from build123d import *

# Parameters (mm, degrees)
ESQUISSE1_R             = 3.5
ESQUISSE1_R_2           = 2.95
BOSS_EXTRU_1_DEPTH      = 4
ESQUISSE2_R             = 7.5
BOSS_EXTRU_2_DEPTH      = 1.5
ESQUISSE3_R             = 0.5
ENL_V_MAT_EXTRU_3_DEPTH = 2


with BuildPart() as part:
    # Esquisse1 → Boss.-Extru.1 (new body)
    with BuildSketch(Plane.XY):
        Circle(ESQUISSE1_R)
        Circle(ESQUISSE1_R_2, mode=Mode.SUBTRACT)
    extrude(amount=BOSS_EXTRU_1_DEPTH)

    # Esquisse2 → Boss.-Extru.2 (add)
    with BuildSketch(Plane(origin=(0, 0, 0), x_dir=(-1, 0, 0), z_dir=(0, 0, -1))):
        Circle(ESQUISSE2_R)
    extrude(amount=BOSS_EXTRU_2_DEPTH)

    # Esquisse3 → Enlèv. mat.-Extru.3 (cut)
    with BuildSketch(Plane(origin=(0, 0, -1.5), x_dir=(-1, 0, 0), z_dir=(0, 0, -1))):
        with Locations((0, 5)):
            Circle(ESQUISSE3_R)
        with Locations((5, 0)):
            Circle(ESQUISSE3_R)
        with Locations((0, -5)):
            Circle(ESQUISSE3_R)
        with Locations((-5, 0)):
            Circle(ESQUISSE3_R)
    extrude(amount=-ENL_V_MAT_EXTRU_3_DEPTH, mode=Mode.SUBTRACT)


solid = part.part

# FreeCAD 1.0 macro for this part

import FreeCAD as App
import Part
import Sketcher

doc = App.newDocument("Part")
body = doc.addObject("PartDesign::Body", "Body")

sketch1 = body.newObject("Sketcher::SketchObject", "Sketch")
sketch1.AttachmentSupport = (doc.getObject("XY_Plane"), [""])
sketch1.MapMode = "FlatFace"
sketch1.addGeometry(Part.Circle(App.Vector(0, 0, 0), App.Vector(0, 0, 1), 3.5), False)
sketch1.addGeometry(Part.Circle(App.Vector(0, 0, 0), App.Vector(0, 0, 1), 2.95), False)
sketch1.addConstraint(Sketcher.Constraint("Coincident", 0, 3, -1, 1))
sketch1.addConstraint(Sketcher.Constraint("Coincident", 1, 3, -1, 1))
sketch1.addConstraint(Sketcher.Constraint("Diameter", 0, 7.0))
sketch1.addConstraint(Sketcher.Constraint("Diameter", 1, 5.9))
pad1 = body.newObject("PartDesign::Pad", "Pad")
pad1.Profile = sketch1
pad1.Length = 4

sketch2 = body.newObject("Sketcher::SketchObject", "Sketch001")
sketch2.AttachmentSupport = (doc.getObject("XY_Plane"), [""])
sketch2.MapMode = "FlatFace"
sketch2.addGeometry(Part.Circle(App.Vector(0, 0, 0), App.Vector(0, 0, 1), 7.5), False)
sketch2.addConstraint(Sketcher.Constraint("Coincident", 0, 3, -1, 1))
sketch2.addConstraint(Sketcher.Constraint("Diameter", 0, 15.0))
pad2 = body.newObject("PartDesign::Pad", "Pad001")
pad2.Profile = sketch2
pad2.Length = 1.5
pad2.Reversed = True

sketch3 = body.newObject("Sketcher::SketchObject", "Sketch002")
sketch3.AttachmentSupport = (doc.getObject("XY_Plane"), [""])
sketch3.MapMode = "FlatFace"
sketch3.AttachmentOffset = App.Placement(App.Vector(0, 0, -1.5), App.Rotation())
sketch3.addGeometry(Part.Circle(App.Vector(0, 5, 0), App.Vector(0, 0, 1), 0.5), False)
sketch3.addGeometry(Part.Circle(App.Vector(-5, 0, 0), App.Vector(0, 0, 1), 0.5), False)
sketch3.addGeometry(Part.Circle(App.Vector(0, -5, 0), App.Vector(0, 0, 1), 0.5), False)
sketch3.addGeometry(Part.Circle(App.Vector(5, 0, 0), App.Vector(0, 0, 1), 0.5), False)
sketch3.addConstraint(Sketcher.Constraint("Equal", 0, 1))
sketch3.addConstraint(Sketcher.Constraint("Equal", 1, 2))
sketch3.addConstraint(Sketcher.Constraint("Equal", 2, 3))
sketch3.addConstraint(Sketcher.Constraint("Symmetric", 0, 3, 2, 3, -1, 1))
sketch3.addConstraint(Sketcher.Constraint("Symmetric", 1, 3, 3, 3, -1, 1))
sketch3.addConstraint(Sketcher.Constraint("PointOnObject", 0, 3, -2))
sketch3.addConstraint(Sketcher.Constraint("PointOnObject", 1, 3, -1))
sketch3.addConstraint(Sketcher.Constraint("Diameter", 0, 1.0))
sketch3.addConstraint(Sketcher.Constraint("DistanceY", -1, 1, 0, 3, 5.0))
sketch3.addConstraint(Sketcher.Constraint("DistanceX", 1, 3, -1, 1, 5.0))
pocket1 = body.newObject("PartDesign::Pocket", "Pocket")
pocket1.Profile = sketch3
pocket1.Length = 2
pocket1.Reversed = True

doc.recompute()
